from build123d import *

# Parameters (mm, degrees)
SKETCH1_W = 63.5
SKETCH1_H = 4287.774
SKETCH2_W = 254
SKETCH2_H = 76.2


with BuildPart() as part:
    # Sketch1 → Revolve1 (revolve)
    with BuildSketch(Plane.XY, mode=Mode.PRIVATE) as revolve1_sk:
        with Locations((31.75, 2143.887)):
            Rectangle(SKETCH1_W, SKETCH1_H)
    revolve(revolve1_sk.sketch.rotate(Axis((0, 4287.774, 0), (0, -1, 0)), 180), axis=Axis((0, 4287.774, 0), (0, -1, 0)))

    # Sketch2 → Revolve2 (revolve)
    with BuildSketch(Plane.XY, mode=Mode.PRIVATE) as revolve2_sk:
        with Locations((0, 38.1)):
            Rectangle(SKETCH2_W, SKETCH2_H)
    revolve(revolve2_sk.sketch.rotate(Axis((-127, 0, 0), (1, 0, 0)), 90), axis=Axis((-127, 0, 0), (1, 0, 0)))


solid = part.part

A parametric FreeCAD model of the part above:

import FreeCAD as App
import Part
import Sketcher

V = App.Vector
Q = App.Units.Quantity

doc = App.newDocument("Part")
body = doc.addObject("PartDesign::Body", "Body")

sketch1 = doc.addObject("Sketcher::SketchObject", "Sketch")
body.addObject(sketch1)
sketch1.AttachmentSupport = (doc.XY_Plane, [""])
sketch1.MapMode = "FlatFace"
sketch1.addGeometry([
    Part.LineSegment(V(0, 4288, 0), V(0, 0, 0)),
    Part.LineSegment(V(0, 0, 0), V(64, 0, 0)),
    Part.LineSegment(V(64, 0, 0), V(64, 4288, 0)),
    Part.LineSegment(V(64, 4288, 0), V(0, 4288, 0)),
], False)
sketch1.addConstraint([
    Sketcher.Constraint("Coincident", 0, 2, 1, 1),
    Sketcher.Constraint("Coincident", 1, 2, 2, 1),
    Sketcher.Constraint("Coincident", 2, 2, 3, 1),
    Sketcher.Constraint("Coincident", 3, 2, 0, 1),
    Sketcher.Constraint("Vertical", 0),
    Sketcher.Constraint("Horizontal", 1),
    Sketcher.Constraint("Vertical", 2),
    Sketcher.Constraint("Horizontal", 3),
    Sketcher.Constraint("Coincident", 0, 2, -1, 1),
    Sketcher.Constraint("DistanceX", 1, 1, 1, 2, Q("2.5 in")),
    Sketcher.Constraint("DistanceY", 0, 2, 0, 1, Q("168.81 in")),
])
revolution = doc.addObject("PartDesign::Revolution", "Revolution")
body.addObject(revolution)
revolution.Profile = sketch1
revolution.ReferenceAxis = (sketch1, ["V_Axis"])
revolution.Angle = 360

sketch2 = doc.addObject("Sketcher::SketchObject", "Sketch001")
body.addObject(sketch2)
sketch2.AttachmentSupport = (doc.XY_Plane, [""])
sketch2.MapMode = "FlatFace"
sketch2.addGeometry([
    Part.LineSegment(V(-127, 76, 0), V(-127, 0, 0)),
    Part.LineSegment(V(-127, 0, 0), V(127, 0, 0)),
    Part.LineSegment(V(127, 0, 0), V(127, 76, 0)),
    Part.LineSegment(V(127, 76, 0), V(-127, 76, 0)),
], False)
sketch2.addConstraint([
    Sketcher.Constraint("Coincident", 0, 2, 1, 1),
    Sketcher.Constraint("Coincident", 1, 2, 2, 1),
    Sketcher.Constraint("Coincident", 2, 2, 3, 1),
    Sketcher.Constraint("Coincident", 3, 2, 0, 1),
    Sketcher.Constraint("Vertical", 0),
    Sketcher.Constraint("Horizontal", 1),
    Sketcher.Constraint("Vertical", 2),
    Sketcher.Constraint("Horizontal", 3),
    Sketcher.Constraint("Symmetric", 0, 2, 1, 2, -1, 1),
    Sketcher.Constraint("DistanceX", 1, 1, 1, 2, Q("10 in")),
    Sketcher.Constraint("DistanceY", 0, 2, 0, 1, Q("3 in")),
])
revolution2 = doc.addObject("PartDesign::Revolution", "Revolution001")
body.addObject(revolution2)
revolution2.Profile = sketch2
revolution2.ReferenceAxis = (sketch2, ["H_Axis"])
revolution2.Angle = 360

doc.recompute()
